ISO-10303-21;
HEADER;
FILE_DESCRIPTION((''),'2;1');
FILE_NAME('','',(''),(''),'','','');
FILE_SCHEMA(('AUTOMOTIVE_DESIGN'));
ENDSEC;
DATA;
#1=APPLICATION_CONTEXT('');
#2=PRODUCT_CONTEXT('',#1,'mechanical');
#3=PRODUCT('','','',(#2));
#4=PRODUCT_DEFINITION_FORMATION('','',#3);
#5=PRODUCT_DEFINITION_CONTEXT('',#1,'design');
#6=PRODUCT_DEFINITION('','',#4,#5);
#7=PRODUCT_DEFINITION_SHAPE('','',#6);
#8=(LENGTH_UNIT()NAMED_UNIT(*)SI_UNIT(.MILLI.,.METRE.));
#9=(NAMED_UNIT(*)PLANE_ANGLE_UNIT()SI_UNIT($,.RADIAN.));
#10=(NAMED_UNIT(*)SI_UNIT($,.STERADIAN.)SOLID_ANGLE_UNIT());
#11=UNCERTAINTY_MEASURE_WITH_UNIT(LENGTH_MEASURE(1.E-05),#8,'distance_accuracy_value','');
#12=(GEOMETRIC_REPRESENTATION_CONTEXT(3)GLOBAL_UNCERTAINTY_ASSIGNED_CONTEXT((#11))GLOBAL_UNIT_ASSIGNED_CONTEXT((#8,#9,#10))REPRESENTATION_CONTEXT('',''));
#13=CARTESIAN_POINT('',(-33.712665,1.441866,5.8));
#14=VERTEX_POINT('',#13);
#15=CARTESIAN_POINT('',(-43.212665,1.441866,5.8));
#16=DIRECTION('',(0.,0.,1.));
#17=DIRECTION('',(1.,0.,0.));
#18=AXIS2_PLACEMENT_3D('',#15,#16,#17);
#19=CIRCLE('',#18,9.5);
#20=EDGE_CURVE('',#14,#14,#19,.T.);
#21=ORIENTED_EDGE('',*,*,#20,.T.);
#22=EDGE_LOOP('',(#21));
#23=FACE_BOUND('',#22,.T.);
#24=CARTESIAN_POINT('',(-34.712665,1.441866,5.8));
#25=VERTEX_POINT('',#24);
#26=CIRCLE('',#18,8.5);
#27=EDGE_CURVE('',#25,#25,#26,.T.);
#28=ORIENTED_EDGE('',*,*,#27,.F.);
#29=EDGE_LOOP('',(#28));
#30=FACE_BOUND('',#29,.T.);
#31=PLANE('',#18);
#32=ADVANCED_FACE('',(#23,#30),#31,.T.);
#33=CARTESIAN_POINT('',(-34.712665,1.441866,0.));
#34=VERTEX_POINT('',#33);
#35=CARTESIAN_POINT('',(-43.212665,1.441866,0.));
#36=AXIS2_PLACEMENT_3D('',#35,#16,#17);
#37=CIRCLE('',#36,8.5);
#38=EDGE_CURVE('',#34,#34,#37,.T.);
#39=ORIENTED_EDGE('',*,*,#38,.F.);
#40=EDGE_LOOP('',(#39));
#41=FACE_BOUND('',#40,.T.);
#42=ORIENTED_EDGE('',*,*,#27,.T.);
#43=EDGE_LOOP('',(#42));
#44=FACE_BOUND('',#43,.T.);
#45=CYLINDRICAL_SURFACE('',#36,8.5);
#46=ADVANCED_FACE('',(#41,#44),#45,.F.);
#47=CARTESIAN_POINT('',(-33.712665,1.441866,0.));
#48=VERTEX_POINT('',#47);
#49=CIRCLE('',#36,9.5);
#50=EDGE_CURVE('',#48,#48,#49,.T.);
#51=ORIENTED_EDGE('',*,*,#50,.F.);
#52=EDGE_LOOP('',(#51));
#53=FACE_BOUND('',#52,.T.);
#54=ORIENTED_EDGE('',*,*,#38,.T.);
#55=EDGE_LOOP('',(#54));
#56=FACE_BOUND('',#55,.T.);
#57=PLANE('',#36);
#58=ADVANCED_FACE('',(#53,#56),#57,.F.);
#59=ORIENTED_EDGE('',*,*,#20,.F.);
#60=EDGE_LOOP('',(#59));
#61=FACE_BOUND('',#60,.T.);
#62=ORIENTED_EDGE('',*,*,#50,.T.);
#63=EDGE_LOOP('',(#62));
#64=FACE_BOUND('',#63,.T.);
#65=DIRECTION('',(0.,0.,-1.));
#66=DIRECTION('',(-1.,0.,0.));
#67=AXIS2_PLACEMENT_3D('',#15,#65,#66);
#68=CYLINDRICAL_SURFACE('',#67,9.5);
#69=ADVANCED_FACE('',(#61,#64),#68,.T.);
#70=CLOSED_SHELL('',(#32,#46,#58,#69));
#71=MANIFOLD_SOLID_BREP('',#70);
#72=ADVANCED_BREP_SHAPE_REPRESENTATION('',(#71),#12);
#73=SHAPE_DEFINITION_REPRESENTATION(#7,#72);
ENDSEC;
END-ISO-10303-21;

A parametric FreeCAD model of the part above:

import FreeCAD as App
import Part
import Sketcher
from FreeCAD import Vector
Q = App.Units.Quantity

doc = App.newDocument("Part")
body = doc.addObject("PartDesign::Body", "Body")

sketch1 = doc.addObject("Sketcher::SketchObject", "Sketch")
body.addObject(sketch1)
sketch1.AttachmentSupport = (doc.XY_Plane, [""])
sketch1.MapMode = "FlatFace"
sketch1.addGeometry(Part.Circle(Vector(-43.212665, 1.441866, 0), Vector(0, 0, 1), 9.5), False)
sketch1.addConstraint(Sketcher.Constraint("Diameter", 0, Q("19 mm")))
sketch1.addConstraint(Sketcher.Constraint("DistanceX", 0, 3, -1, 1, Q("43.212665 mm")))
sketch1.addConstraint(Sketcher.Constraint("DistanceY", -1, 1, 0, 3, Q("1.441866 mm")))
pad1 = doc.addObject("PartDesign::Pad", "Pad")
body.addObject(pad1)
pad1.Profile = sketch1
pad1.Length = 5.8

sketch2 = doc.addObject("Sketcher::SketchObject", "Sketch001")
body.addObject(sketch2)
sketch2.AttachmentSupport = (doc.XY_Plane, [""])
sketch2.MapMode = "FlatFace"
sketch2.AttachmentOffset = App.Placement(Vector(0, 0, 5.8), App.Rotation())
sketch2.addGeometry(Part.Circle(Vector(-43.212665, 1.441866, 0), Vector(0, 0, 1), 8.5), False)
sketch2.addConstraint(Sketcher.Constraint("Diameter", 0, Q("17 mm")))
sketch2.addConstraint(Sketcher.Constraint("DistanceX", 0, 3, -1, 1, Q("43.212665 mm")))
sketch2.addConstraint(Sketcher.Constraint("DistanceY", -1, 1, 0, 3, Q("1.441866 mm")))
pocket1 = doc.addObject("PartDesign::Pocket", "Pocket")
body.addObject(pocket1)
pocket1.Profile = sketch2
pocket1.Length = 5.8

doc.recompute()
